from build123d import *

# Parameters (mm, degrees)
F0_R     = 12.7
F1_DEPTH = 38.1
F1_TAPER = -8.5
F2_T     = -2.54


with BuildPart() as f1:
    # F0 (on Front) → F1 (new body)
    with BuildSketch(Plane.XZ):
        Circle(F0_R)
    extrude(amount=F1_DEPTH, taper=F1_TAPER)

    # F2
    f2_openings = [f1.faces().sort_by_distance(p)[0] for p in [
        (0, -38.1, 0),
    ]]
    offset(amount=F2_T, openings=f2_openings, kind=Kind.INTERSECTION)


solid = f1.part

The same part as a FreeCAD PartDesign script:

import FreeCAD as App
import Part
import Sketcher
Q = App.Units.Quantity


def faces_at(feature, points):
    """Names of the faces that lie closest to the given points."""
    faces = feature.Shape.Faces
    near = lambda p: min(range(len(faces)), key=lambda i: faces[i].distToShape(Part.Vertex(*p))[0])
    return sorted({f"Face{near(p) + 1}" for p in points})

doc = App.newDocument("Part")
body = doc.addObject("PartDesign::Body", "Body")

sketch1 = body.newObject("Sketcher::SketchObject", "Sketch")
sketch1.AttachmentSupport = (doc.getObject("XZ_Plane"), [""])
sketch1.MapMode = "FlatFace"
sketch1.addGeometry(Part.Circle(App.Vector(0, 0, 0), App.Vector(0, 0, 1), 13), False)
sketch1.addConstraint(Sketcher.Constraint("Coincident", 0, 3, -1, 1))
sketch1.addConstraint(Sketcher.Constraint("Diameter", 0, Q("1 in")))
pad1 = body.newObject("PartDesign::Pad", "Pad")
pad1.Profile = sketch1
pad1.Length = Q("1.5 in")
pad1.TaperAngle = 8.5
doc.recompute()

thickness = body.newObject("PartDesign::Thickness", "Thickness")
thickness.Base = (pad1, faces_at(pad1, [(0, -38.1, 0)]))
thickness.Value = Q("0.1 in")
thickness.Reversed = True
thickness.Join = "Intersection"

doc.recompute()
